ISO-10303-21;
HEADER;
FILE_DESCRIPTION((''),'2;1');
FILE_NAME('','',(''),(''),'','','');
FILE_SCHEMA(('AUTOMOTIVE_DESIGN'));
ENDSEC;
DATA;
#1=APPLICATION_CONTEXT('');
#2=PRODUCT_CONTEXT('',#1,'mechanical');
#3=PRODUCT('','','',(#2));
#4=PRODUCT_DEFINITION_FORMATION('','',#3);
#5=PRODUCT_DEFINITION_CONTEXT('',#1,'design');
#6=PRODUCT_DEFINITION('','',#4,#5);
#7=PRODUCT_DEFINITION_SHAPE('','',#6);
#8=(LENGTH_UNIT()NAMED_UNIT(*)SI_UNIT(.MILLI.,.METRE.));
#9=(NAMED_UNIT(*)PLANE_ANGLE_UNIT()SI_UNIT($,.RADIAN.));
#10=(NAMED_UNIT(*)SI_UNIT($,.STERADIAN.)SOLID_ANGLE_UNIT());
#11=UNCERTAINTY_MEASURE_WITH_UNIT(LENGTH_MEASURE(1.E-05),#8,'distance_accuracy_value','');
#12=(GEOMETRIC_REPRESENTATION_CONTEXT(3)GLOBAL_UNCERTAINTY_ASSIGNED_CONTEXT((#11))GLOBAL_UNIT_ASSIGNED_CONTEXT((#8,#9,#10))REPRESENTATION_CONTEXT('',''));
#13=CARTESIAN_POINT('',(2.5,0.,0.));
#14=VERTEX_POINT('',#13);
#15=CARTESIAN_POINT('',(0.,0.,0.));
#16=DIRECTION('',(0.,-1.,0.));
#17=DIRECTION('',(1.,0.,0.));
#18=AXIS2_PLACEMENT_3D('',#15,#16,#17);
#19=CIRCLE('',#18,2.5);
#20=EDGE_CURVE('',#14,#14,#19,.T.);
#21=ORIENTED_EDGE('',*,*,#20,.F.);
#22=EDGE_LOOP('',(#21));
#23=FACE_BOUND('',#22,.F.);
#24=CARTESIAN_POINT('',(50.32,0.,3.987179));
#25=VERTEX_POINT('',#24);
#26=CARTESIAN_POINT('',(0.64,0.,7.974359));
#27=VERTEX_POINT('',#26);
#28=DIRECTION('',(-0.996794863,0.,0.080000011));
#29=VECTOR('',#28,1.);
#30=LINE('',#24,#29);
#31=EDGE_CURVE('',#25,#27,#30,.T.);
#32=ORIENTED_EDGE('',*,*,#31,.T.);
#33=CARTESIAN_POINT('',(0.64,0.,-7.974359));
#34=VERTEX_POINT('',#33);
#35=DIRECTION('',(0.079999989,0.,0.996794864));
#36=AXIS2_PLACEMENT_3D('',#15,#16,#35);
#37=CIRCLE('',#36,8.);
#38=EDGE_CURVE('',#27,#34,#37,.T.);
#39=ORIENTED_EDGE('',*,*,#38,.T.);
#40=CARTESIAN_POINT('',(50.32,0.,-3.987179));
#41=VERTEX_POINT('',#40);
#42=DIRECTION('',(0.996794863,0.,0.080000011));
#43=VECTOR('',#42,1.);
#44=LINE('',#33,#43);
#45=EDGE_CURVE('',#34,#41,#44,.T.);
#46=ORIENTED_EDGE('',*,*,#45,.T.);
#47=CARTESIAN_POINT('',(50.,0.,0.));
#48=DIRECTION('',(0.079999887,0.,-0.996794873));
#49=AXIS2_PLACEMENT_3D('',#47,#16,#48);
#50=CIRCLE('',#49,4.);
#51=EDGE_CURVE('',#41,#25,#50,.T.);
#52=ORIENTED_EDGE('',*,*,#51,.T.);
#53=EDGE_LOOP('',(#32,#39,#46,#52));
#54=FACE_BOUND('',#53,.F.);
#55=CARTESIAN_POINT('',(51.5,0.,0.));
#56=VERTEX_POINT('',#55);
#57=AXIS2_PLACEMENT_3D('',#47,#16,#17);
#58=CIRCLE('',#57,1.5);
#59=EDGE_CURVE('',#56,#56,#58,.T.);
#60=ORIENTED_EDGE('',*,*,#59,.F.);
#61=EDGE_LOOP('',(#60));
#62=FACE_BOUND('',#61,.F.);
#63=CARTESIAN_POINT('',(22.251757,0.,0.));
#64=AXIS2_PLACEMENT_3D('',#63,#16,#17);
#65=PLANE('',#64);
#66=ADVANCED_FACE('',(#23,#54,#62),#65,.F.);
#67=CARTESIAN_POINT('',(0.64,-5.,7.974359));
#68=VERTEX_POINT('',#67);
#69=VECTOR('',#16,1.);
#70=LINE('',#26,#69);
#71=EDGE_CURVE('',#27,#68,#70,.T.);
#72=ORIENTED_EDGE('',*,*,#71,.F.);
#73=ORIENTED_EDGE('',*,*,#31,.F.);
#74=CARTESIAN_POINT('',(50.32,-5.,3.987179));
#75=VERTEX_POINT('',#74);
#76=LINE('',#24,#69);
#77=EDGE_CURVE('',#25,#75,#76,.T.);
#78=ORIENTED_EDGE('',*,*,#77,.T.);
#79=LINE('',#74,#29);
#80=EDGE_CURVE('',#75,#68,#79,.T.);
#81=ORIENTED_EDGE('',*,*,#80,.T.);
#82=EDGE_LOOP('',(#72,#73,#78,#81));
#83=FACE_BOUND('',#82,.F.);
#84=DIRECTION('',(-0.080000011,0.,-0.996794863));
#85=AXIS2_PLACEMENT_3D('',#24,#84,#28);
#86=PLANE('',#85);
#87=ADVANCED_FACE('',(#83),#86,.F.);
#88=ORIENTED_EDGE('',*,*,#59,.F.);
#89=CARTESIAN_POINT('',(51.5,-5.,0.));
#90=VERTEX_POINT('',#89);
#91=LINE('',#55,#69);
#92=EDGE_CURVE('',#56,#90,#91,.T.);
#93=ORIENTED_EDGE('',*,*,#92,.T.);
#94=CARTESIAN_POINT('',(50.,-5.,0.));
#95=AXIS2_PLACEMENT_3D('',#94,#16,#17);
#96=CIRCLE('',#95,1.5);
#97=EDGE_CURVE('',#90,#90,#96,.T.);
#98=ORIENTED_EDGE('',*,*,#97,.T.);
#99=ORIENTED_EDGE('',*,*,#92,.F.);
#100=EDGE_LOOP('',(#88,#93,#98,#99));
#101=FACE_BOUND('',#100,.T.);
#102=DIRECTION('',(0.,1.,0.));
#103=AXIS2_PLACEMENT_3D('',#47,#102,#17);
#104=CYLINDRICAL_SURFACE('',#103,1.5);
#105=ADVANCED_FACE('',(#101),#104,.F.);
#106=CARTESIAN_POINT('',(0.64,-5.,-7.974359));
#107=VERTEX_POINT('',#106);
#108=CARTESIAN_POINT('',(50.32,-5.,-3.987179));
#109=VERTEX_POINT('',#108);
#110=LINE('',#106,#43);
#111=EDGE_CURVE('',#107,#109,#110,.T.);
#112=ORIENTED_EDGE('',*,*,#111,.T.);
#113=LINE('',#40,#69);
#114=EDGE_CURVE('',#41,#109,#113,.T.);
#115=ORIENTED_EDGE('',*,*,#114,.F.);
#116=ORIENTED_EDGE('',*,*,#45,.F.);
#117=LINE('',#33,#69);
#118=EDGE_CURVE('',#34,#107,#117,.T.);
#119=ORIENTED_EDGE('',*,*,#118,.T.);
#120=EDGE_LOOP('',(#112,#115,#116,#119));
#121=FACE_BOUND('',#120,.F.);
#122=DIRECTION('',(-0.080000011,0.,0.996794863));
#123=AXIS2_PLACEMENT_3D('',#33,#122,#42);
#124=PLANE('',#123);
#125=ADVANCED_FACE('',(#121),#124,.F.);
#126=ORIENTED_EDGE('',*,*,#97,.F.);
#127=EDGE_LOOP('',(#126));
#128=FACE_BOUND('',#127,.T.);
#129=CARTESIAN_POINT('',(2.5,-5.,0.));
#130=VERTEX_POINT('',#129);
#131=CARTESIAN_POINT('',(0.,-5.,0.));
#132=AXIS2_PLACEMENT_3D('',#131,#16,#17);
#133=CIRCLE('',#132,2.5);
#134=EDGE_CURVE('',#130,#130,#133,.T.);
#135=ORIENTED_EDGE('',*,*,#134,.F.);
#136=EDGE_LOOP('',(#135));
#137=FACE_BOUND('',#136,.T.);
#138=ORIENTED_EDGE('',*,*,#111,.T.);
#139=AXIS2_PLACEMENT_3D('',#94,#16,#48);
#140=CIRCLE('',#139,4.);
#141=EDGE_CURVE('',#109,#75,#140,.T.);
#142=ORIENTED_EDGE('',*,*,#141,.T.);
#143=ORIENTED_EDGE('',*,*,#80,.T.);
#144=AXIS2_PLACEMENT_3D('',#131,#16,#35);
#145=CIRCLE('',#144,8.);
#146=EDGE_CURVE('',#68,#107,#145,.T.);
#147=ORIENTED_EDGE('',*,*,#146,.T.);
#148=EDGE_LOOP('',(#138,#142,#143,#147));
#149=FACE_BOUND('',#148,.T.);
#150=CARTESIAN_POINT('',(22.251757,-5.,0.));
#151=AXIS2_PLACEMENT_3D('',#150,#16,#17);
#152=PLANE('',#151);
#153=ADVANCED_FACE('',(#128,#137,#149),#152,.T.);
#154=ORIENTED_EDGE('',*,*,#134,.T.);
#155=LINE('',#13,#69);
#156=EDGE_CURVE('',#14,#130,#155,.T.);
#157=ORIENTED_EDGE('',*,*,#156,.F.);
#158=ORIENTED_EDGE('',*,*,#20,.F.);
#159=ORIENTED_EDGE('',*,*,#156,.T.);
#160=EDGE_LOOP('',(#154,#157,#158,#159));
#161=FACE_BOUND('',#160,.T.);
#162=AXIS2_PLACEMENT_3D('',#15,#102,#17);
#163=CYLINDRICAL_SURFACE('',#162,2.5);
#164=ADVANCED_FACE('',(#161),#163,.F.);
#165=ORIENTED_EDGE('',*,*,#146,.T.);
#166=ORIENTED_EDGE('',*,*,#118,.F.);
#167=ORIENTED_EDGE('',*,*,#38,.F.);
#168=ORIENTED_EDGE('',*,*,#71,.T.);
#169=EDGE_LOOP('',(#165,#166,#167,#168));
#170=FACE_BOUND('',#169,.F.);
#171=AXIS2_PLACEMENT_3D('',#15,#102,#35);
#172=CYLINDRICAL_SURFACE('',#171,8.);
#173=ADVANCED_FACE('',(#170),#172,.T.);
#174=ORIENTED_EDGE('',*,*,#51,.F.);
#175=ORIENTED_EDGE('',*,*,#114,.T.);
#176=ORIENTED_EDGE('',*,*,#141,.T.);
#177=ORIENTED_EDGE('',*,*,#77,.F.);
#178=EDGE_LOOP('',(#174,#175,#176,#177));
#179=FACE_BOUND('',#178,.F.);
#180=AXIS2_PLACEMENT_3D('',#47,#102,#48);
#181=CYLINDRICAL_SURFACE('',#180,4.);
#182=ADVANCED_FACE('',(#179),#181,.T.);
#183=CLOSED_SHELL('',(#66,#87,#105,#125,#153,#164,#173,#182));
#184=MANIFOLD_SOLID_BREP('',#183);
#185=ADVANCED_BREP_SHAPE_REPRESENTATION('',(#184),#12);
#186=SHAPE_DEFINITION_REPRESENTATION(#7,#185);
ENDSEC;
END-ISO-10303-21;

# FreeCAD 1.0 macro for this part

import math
import FreeCAD as App
import Part
import Sketcher

V = App.Vector
Q = App.Units.Quantity

doc = App.newDocument("Part")
params = doc.addObject("Spreadsheet::Sheet", "Params")
for row, (alias, value) in enumerate([
    ("sketch1_diameter", "5 mm"),
    ("sketch1_diameter2", "3 mm"),
    ("sketch1_radius", "8 mm"),
    ("sketch1_radius2", "4 mm"),
    ("pad1_length", "5 mm"),
], start=1):
    params.set(f"A{row}", alias)
    params.set(f"B{row}", "=" + value)
    params.setAlias(f"B{row}", alias)

body = doc.addObject("PartDesign::Body", "Body")

sketch1 = body.newObject("Sketcher::SketchObject", "Sketch")
sketch1.AttachmentSupport = (doc.getObject("XZ_Plane"), [""])
sketch1.MapMode = "FlatFace"
sketch1.addGeometry(Part.LineSegment(V(50.3, 4, 0), V(0.6, 8, 0)), False)
sketch1.addGeometry(Part.ArcOfCircle(Part.Circle(V(0, 0, 0), V(0, 0, 1), 8), math.radians(85), math.radians(275)), False)
sketch1.addGeometry(Part.LineSegment(V(0.6, -8, 0), V(50.3, -4, 0)), False)
sketch1.addGeometry(Part.ArcOfCircle(Part.Circle(V(50, 0, 0), V(0, 0, 1), 4), math.radians(-85), math.radians(85)), False)
sketch1.addGeometry(Part.Circle(V(0, 0, 0), V(0, 0, 1), 2.5), False)
sketch1.addGeometry(Part.Circle(V(50, 0, 0), V(0, 0, 1), 1.5), False)
sketch1.addConstraint(Sketcher.Constraint("Tangent", 0, 2, 1, 1))
sketch1.addConstraint(Sketcher.Constraint("Tangent", 1, 2, 2, 1))
sketch1.addConstraint(Sketcher.Constraint("Tangent", 2, 2, 3, 1))
sketch1.addConstraint(Sketcher.Constraint("Tangent", 3, 2, 0, 1))
sketch1.addConstraint(Sketcher.Constraint("Coincident", 1, 3, -1, 1))
sketch1.addConstraint(Sketcher.Constraint("Coincident", 4, 3, -1, 1))
sketch1.addConstraint(Sketcher.Constraint("Coincident", 5, 3, 3, 3))
sketch1.addConstraint(Sketcher.Constraint("PointOnObject", 3, 3, -1))
sketch1.addConstraint(Sketcher.Constraint("Diameter", 4, Q("5 mm")))
sketch1.addConstraint(Sketcher.Constraint("Diameter", 5, Q("3 mm")))
sketch1.addConstraint(Sketcher.Constraint("Radius", 1, Q("8 mm")))
sketch1.addConstraint(Sketcher.Constraint("Radius", 3, Q("4 mm")))
sketch1.addConstraint(Sketcher.Constraint("DistanceX", -1, 1, 3, 3, Q("50 mm")))
sketch1.setExpression("Constraints[8]", "Params.sketch1_diameter")
sketch1.setExpression("Constraints[9]", "Params.sketch1_diameter2")
sketch1.setExpression("Constraints[10]", "Params.sketch1_radius")
sketch1.setExpression("Constraints[11]", "Params.sketch1_radius2")
pad1 = body.newObject("PartDesign::Pad", "Pad")
pad1.Profile = sketch1
pad1.setExpression("Length", "Params.pad1_length")

doc.recompute()
